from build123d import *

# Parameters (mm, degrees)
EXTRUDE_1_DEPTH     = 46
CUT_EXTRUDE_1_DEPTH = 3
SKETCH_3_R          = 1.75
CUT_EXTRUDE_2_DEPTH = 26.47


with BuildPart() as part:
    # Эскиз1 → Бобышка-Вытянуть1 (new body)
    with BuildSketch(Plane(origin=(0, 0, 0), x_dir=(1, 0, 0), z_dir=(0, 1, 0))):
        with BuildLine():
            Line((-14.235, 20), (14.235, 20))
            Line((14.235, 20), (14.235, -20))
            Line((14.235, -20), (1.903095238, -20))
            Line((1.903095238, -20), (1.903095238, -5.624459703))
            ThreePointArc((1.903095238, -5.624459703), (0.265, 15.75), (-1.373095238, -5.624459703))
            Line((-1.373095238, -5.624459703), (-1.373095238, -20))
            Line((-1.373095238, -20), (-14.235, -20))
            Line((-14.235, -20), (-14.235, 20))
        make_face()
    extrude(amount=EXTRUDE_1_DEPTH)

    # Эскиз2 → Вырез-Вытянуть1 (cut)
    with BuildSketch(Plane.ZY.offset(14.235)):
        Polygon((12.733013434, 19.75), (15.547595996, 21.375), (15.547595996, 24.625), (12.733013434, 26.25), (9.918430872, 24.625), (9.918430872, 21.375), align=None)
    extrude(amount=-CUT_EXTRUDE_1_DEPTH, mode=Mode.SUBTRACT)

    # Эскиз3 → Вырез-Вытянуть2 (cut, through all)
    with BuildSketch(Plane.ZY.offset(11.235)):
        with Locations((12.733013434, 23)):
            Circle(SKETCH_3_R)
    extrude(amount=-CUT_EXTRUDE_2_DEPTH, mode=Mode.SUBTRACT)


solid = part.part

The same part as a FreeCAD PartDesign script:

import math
import FreeCAD as App
import Part
import Sketcher
Q = App.Units.Quantity

doc = App.newDocument("Part")
body = doc.addObject("PartDesign::Body", "Body")

sketch1 = doc.addObject("Sketcher::SketchObject", "Sketch")
body.addObject(sketch1)
sketch1.AttachmentSupport = (doc.XZ_Plane, [""])
sketch1.MapMode = "FlatFace"
sketch1.addGeometry([
    Part.LineSegment(App.Vector(14.2, -20, 0), App.Vector(-14.2, -20, 0)),
    Part.LineSegment(App.Vector(-14.2, -20, 0), App.Vector(-14.2, 20, 0)),
    Part.LineSegment(App.Vector(-14.2, 20, 0), App.Vector(-1.4, 20, 0)),
    Part.LineSegment(App.Vector(-1.4, 20, 0), App.Vector(-1.4, 5.6, 0)),
    Part.ArcOfCircle(Part.Circle(App.Vector(0.3, -5, 0), App.Vector(0, 0, 1), 10.8), math.radians(99), math.radians(441)),
    Part.LineSegment(App.Vector(1.9, 5.6, 0), App.Vector(1.9, 20, 0)),
    Part.LineSegment(App.Vector(1.9, 20, 0), App.Vector(14.2, 20, 0)),
    Part.LineSegment(App.Vector(14.2, 20, 0), App.Vector(14.2, -20, 0)),
], False)
sketch1.addConstraint([
    Sketcher.Constraint("Coincident", 0, 2, 1, 1),
    Sketcher.Constraint("Coincident", 1, 2, 2, 1),
    Sketcher.Constraint("Coincident", 2, 2, 3, 1),
    Sketcher.Constraint("Coincident", 3, 2, 4, 1),
    Sketcher.Constraint("Coincident", 4, 2, 5, 1),
    Sketcher.Constraint("Coincident", 5, 2, 6, 1),
    Sketcher.Constraint("Coincident", 6, 2, 7, 1),
    Sketcher.Constraint("Coincident", 7, 2, 0, 1),
    Sketcher.Constraint("Horizontal", 0),
    Sketcher.Constraint("Vertical", 1),
    Sketcher.Constraint("Horizontal", 2),
    Sketcher.Constraint("Vertical", 3),
    Sketcher.Constraint("Vertical", 5),
    Sketcher.Constraint("Horizontal", 6),
    Sketcher.Constraint("Vertical", 7),
    Sketcher.Constraint("Symmetric", 0, 2, 6, 2, -1, 1),
    Sketcher.Constraint("Horizontal", 3, 2, 4, 2),
    Sketcher.Constraint("Horizontal", 2, 2, 5, 2),
    Sketcher.Constraint("DistanceY", 1, 1, 1, 2, Q("40 mm")),
    Sketcher.Constraint("Radius", 4, Q("10.75 mm")),
    Sketcher.Constraint("DistanceY", 4, 3, -1, 1, Q("5 mm")),
    Sketcher.Constraint("DistanceX", 0, 2, 0, 1, Q("28.47 mm")),
    Sketcher.Constraint("DistanceX", 0, 2, 4, 3, Q("14.5 mm")),
    Sketcher.Constraint("DistanceY", 3, 2, 3, 1, Q("14.37554 mm")),
])
pad1 = doc.addObject("PartDesign::Pad", "Pad")
body.addObject(pad1)
pad1.Profile = sketch1
pad1.Length = 46
pad1.Reversed = True

sketch2 = doc.addObject("Sketcher::SketchObject", "Sketch001")
body.addObject(sketch2)
sketch2.AttachmentSupport = (doc.YZ_Plane, [""])
sketch2.MapMode = "FlatFace"
sketch2.AttachmentOffset = App.Placement(App.Vector(0, 0, -14.235), App.Rotation())
sketch2.addGeometry([
    Part.LineSegment(App.Vector(19.8, 12.7, 0), App.Vector(21.4, 15.5, 0)),
    Part.LineSegment(App.Vector(21.4, 15.5, 0), App.Vector(24.6, 15.5, 0)),
    Part.LineSegment(App.Vector(24.6, 15.5, 0), App.Vector(26.2, 12.7, 0)),
    Part.LineSegment(App.Vector(26.2, 12.7, 0), App.Vector(24.6, 9.9, 0)),
    Part.LineSegment(App.Vector(24.6, 9.9, 0), App.Vector(21.4, 9.9, 0)),
    Part.LineSegment(App.Vector(21.4, 9.9, 0), App.Vector(19.8, 12.7, 0)),
], False)
sketch2.addConstraint([
    Sketcher.Constraint("Coincident", 0, 2, 1, 1),
    Sketcher.Constraint("Coincident", 1, 2, 2, 1),
    Sketcher.Constraint("Coincident", 2, 2, 3, 1),
    Sketcher.Constraint("Coincident", 3, 2, 4, 1),
    Sketcher.Constraint("Coincident", 4, 2, 5, 1),
    Sketcher.Constraint("Coincident", 5, 2, 0, 1),
    Sketcher.Constraint("Horizontal", 1),
    Sketcher.Constraint("Horizontal", 4),
    Sketcher.Constraint("Parallel", 0, 3),
    Sketcher.Constraint("Parallel", 2, 5),
    Sketcher.Constraint("Horizontal", 2, 2, 5, 2),
    Sketcher.Constraint("Vertical", 1, 2, 3, 2),
    Sketcher.Constraint("Vertical", 0, 2, 4, 2),
    Sketcher.Constraint("Angle", 0, Q("60 deg")),
    Sketcher.Constraint("DistanceX", 1, 1, 1, 2, Q("3.25 mm")),
    Sketcher.Constraint("DistanceX", 5, 2, 2, 2, Q("6.5 mm")),
    Sketcher.Constraint("DistanceX", -1, 1, 2, 2, Q("26.25 mm")),
    Sketcher.Constraint("DistanceY", -1, 1, 3, 2, Q("9.918431 mm")),
])
pocket1 = doc.addObject("PartDesign::Pocket", "Pocket")
body.addObject(pocket1)
pocket1.Profile = sketch2
pocket1.Length = 3
pocket1.Reversed = True

sketch3 = doc.addObject("Sketcher::SketchObject", "Sketch002")
body.addObject(sketch3)
sketch3.AttachmentSupport = (doc.YZ_Plane, [""])
sketch3.MapMode = "FlatFace"
sketch3.AttachmentOffset = App.Placement(App.Vector(0, 0, -11.235), App.Rotation())
sketch3.addGeometry(Part.Circle(App.Vector(23, 12.7, 0), App.Vector(0, 0, 1), 1.8), False)
sketch3.addConstraint([
    Sketcher.Constraint("Diameter", 0, Q("3.5 mm")),
    Sketcher.Constraint("DistanceX", -1, 1, 0, 3, Q("23 mm")),
    Sketcher.Constraint("DistanceY", -1, 1, 0, 3, Q("12.733013 mm")),
])
pocket2 = doc.addObject("PartDesign::Pocket", "Pocket001")
body.addObject(pocket2)
pocket2.Profile = sketch3
pocket2.Type = "ThroughAll"
pocket2.Reversed = True

doc.recompute()
